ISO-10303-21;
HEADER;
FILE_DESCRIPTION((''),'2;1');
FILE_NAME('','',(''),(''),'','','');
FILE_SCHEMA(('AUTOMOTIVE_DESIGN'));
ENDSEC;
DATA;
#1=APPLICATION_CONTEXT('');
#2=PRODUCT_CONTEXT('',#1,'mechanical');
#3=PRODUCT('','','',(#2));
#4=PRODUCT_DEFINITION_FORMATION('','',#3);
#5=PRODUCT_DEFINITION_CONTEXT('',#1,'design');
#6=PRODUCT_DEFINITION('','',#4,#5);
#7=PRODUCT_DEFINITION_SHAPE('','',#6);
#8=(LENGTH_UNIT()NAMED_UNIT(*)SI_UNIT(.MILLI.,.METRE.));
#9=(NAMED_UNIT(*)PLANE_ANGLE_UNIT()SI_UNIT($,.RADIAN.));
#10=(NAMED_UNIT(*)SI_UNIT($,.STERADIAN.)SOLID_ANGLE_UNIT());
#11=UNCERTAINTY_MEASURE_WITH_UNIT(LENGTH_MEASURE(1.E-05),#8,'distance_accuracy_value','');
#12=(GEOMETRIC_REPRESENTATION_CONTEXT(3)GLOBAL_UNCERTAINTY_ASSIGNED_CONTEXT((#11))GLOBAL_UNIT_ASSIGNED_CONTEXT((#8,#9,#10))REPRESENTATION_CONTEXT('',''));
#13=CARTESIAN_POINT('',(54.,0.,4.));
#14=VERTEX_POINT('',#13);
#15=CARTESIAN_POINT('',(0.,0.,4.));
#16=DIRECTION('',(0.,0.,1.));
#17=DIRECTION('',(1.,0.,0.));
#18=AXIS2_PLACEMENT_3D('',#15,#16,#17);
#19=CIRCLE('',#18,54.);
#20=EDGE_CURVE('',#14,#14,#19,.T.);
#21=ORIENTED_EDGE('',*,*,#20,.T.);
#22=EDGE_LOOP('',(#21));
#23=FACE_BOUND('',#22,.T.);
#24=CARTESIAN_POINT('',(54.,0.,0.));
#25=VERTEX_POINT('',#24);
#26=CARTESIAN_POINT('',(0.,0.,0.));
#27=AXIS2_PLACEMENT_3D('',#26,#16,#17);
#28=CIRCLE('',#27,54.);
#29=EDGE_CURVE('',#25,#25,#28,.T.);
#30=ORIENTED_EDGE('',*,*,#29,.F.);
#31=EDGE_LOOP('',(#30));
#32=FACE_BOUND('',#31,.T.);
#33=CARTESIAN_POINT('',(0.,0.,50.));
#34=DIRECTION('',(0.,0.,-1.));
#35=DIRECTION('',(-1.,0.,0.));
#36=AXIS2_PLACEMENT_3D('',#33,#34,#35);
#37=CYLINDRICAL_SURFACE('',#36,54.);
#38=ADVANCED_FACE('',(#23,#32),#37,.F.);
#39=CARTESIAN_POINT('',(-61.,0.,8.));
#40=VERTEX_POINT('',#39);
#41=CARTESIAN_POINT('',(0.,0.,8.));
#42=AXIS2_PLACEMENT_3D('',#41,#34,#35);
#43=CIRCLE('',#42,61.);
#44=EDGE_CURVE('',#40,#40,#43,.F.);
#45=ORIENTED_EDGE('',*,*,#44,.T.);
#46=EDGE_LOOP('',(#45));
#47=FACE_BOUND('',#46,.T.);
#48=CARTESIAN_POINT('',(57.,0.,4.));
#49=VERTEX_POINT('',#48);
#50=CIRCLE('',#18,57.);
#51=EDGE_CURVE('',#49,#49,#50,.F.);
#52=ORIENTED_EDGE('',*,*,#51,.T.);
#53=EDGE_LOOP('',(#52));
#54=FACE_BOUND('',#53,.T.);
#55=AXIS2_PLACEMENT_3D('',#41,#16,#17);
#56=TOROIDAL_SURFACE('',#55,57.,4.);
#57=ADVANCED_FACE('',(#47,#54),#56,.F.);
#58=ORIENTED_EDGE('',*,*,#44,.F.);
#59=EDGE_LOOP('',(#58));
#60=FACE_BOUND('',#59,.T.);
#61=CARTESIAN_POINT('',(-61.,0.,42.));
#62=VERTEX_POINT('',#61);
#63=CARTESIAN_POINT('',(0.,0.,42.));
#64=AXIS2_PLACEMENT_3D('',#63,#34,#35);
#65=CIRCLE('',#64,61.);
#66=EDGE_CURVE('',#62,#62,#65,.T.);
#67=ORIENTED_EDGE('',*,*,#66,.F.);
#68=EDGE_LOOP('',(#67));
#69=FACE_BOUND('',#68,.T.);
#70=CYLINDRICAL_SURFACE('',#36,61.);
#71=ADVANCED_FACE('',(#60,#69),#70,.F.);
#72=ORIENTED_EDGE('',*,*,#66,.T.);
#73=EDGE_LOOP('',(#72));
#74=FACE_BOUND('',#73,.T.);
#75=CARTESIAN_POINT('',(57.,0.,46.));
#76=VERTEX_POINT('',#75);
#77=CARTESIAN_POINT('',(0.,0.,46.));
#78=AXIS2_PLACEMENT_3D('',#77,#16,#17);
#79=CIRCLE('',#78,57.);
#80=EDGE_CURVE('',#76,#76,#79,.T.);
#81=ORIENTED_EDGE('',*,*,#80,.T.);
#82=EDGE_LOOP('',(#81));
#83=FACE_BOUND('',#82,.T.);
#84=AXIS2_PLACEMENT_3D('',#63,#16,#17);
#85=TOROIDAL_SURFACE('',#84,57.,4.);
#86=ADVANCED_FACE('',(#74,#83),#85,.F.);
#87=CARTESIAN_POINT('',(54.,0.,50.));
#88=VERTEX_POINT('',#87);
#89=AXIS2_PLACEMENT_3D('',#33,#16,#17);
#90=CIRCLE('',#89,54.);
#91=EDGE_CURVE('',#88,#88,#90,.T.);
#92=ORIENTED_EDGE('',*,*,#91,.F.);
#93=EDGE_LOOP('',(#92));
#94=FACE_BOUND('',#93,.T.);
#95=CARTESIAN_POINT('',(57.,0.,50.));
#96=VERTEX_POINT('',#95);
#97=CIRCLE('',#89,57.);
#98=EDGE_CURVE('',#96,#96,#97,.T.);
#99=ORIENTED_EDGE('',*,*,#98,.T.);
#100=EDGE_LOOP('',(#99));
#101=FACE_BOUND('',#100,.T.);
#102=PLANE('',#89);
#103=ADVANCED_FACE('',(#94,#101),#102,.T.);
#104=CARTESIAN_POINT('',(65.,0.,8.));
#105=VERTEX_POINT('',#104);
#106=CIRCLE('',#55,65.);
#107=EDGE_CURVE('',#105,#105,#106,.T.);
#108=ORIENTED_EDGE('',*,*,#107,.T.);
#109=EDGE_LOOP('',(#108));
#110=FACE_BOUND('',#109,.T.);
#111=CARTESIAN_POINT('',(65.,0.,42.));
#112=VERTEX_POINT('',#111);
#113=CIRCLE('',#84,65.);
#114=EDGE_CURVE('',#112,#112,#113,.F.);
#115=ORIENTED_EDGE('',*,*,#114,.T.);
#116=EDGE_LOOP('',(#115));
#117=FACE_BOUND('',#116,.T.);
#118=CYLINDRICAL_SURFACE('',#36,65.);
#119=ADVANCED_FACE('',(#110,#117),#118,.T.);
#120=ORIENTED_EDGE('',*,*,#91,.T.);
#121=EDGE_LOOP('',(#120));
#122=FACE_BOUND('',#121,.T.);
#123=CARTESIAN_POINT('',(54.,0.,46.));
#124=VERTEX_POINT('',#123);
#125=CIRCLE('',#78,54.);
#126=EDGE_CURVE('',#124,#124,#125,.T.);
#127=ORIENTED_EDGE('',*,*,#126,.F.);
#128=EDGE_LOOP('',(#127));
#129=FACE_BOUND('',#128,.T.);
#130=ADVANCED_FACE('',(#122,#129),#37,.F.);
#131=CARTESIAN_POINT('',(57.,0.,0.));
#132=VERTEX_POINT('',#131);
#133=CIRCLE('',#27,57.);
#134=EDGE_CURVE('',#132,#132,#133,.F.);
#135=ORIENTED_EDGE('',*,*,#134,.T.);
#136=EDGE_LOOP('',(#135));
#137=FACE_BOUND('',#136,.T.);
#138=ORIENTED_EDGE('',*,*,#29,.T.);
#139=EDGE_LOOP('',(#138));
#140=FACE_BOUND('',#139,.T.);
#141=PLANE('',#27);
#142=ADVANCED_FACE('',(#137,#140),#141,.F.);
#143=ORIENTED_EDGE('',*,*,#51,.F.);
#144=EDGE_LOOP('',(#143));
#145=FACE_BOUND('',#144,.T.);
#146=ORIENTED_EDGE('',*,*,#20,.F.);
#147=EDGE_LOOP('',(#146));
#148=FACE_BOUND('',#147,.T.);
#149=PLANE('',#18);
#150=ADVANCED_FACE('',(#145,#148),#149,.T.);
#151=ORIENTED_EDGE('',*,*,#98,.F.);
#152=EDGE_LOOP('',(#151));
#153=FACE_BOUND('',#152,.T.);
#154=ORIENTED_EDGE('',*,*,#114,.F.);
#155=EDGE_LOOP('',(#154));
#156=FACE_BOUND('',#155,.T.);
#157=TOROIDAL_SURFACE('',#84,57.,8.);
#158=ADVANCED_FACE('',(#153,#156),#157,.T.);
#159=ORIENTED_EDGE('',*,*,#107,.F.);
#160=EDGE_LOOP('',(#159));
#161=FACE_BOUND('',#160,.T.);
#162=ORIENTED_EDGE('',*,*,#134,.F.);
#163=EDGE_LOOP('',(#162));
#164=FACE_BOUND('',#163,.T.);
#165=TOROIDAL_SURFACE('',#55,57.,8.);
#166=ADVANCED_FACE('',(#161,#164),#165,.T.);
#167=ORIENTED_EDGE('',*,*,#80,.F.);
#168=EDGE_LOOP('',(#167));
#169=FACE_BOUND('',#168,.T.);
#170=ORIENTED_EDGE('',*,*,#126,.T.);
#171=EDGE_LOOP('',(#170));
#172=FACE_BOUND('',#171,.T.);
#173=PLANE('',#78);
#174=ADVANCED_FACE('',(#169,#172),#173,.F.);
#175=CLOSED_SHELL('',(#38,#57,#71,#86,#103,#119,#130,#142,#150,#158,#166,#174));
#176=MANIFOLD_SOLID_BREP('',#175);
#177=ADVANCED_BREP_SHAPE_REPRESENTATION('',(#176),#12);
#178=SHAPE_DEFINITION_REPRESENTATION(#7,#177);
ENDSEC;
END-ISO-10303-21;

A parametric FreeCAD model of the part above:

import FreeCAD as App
import Part
import Sketcher

V = App.Vector


def edges_at(feature, points):
    """Names of the edges that pass closest to the given points."""
    edges = feature.Shape.Edges
    near = lambda p: min(range(len(edges)), key=lambda i: edges[i].distToShape(Part.Vertex(*p))[0])
    return sorted({f"Edge{near(p) + 1}" for p in points})


def faces_at(feature, points):
    """Names of the faces that lie closest to the given points."""
    faces = feature.Shape.Faces
    near = lambda p: min(range(len(faces)), key=lambda i: faces[i].distToShape(Part.Vertex(*p))[0])
    return sorted({f"Face{near(p) + 1}" for p in points})

doc = App.newDocument("Part")
params = doc.addObject("Spreadsheet::Sheet", "Params")
for row, (alias, value) in enumerate([
    ("sketch1_diameter", "130 mm"),
    ("sketch1_diameter2", "108 mm"),
    ("pad1_length", "50 mm"),
    ("fillet_radius", "8 mm"),
    ("thickness_wall", "4 mm"),
], start=1):
    params.set(f"A{row}", alias)
    params.set(f"B{row}", "=" + value)
    params.setAlias(f"B{row}", alias)

body = doc.addObject("PartDesign::Body", "Body")

# Sketch on XY plane
sketch1 = body.newObject("Sketcher::SketchObject", "Sketch")
sketch1.AttachmentSupport = (doc.getObject("XY_Plane"), [""])
sketch1.MapMode = "FlatFace"
sketch1.addGeometry([
    Part.Circle(V(0, 0, 0), V(0, 0, 1), 65),
    Part.Circle(V(0, 0, 0), V(0, 0, 1), 54),
], False)
sketch1.addConstraint([
    Sketcher.Constraint("Coincident", 0, 3, -1, 1),
    Sketcher.Constraint("Coincident", 1, 3, -1, 1),
    Sketcher.Constraint("Diameter", 0, 130.0),
    Sketcher.Constraint("Diameter", 1, 108.0),
])
sketch1.setExpression("Constraints[2]", "Params.sketch1_diameter")
sketch1.setExpression("Constraints[3]", "Params.sketch1_diameter2")
pad1 = body.newObject("PartDesign::Pad", "Pad")
pad1.Profile = sketch1
pad1.setExpression("Length", "Params.pad1_length")
doc.recompute()

fillet = body.newObject("PartDesign::Fillet", "Fillet")
fillet.Base = (pad1, edges_at(pad1, [(-65, 0, 0), (-65, 0, 50)]))
fillet.setExpression("Radius", "Params.fillet_radius")
doc.recompute()

thickness = body.newObject("PartDesign::Thickness", "Thickness")
thickness.Base = (fillet, faces_at(fillet, [(-54, 0, 25)]))
thickness.setExpression("Value", "Params.thickness_wall")
thickness.Reversed = True
thickness.Join = "Intersection"

doc.recompute()
